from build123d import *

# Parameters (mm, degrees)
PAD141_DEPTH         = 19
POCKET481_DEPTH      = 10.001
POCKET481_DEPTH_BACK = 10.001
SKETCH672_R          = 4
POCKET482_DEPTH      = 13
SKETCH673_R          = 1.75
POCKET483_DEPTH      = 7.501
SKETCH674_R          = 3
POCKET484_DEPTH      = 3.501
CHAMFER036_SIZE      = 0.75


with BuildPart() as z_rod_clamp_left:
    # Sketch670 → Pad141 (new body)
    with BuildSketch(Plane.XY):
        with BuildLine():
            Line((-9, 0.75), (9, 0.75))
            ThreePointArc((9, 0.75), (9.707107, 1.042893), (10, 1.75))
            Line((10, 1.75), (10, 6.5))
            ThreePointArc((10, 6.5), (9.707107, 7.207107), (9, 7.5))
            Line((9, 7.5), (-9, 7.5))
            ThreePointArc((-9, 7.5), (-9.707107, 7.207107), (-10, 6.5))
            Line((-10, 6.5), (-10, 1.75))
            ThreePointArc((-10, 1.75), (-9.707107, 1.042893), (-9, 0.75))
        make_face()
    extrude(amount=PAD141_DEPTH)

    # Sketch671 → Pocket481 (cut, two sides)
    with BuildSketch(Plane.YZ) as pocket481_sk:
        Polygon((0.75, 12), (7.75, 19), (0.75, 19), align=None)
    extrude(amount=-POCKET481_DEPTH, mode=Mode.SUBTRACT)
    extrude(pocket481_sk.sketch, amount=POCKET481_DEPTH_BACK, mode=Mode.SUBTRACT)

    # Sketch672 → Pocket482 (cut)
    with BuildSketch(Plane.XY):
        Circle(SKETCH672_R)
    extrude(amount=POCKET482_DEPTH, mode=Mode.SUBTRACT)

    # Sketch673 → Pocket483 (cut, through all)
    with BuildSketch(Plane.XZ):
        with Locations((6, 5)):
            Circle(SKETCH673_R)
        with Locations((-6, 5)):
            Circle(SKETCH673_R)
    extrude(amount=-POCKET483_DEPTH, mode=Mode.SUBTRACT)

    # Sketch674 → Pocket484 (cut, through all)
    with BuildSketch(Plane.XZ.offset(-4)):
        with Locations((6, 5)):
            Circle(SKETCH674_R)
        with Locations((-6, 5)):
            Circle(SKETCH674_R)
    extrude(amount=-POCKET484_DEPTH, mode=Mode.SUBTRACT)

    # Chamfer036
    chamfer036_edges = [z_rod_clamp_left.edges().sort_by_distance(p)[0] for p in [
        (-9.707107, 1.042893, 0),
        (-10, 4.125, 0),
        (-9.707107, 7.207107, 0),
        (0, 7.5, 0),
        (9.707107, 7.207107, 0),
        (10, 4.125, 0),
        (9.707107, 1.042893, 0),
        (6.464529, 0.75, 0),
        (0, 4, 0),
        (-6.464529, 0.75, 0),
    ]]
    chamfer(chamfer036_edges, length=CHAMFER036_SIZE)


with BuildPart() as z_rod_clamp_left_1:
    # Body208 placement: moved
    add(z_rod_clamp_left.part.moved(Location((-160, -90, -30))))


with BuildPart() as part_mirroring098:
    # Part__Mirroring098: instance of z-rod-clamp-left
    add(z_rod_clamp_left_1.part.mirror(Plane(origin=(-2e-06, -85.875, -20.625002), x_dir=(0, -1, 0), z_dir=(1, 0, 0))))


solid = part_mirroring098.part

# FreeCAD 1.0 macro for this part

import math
import FreeCAD as App
import Part
import Sketcher


def edges_at(feature, points):
    """Names of the edges that pass closest to the given points."""
    edges = feature.Shape.Edges
    near = lambda p: min(range(len(edges)), key=lambda i: edges[i].distToShape(Part.Vertex(*p))[0])
    return sorted({f"Edge{near(p) + 1}" for p in points})


def add_polygon(sketch, points):
    """Adds a closed chain of lines whose ends are joined by coincident constraints."""
    first, n = sketch.GeometryCount, len(points)
    for a, b in zip(points, points[1:] + points[:1]):
        sketch.addGeometry(Part.LineSegment(App.Vector(*a, 0), App.Vector(*b, 0)), False)
    for i in range(n):
        sketch.addConstraint(Sketcher.Constraint("Coincident", first + i, 2, first + (i + 1) % n, 1))

doc = App.newDocument("Part")
params = doc.addObject("Spreadsheet::Sheet", "Params")
for row, (alias, value) in enumerate([
    ("sketch1_radius", "0.999999 mm"),
    ("sketch1_width", "18 mm"),
    ("sketch1_height", "4.75 mm"),
    ("pad1_length", "19 mm"),
    ("sketch2_width", "7 mm"),
    ("sketch3_diameter", "8 mm"),
    ("pocket2_length", "13 mm"),
    ("sketch4_diameter", "3.5 mm"),
    ("sketch5_diameter", "6 mm"),
    ("chamfer_size", "0.75 mm"),
], start=1):
    params.set(f"A{row}", alias)
    params.set(f"B{row}", "=" + value)
    params.setAlias(f"B{row}", alias)

body = doc.addObject("PartDesign::Body", "Body")

# Sketch on XY plane
sketch1 = body.newObject("Sketcher::SketchObject", "Sketch")
sketch1.AttachmentSupport = (doc.getObject("XY_Plane"), [""])
sketch1.MapMode = "FlatFace"
sketch1.addGeometry([
    Part.LineSegment(App.Vector(-9, 0.8, 0), App.Vector(9, 0.8, 0)),  # 0
    Part.ArcOfCircle(Part.Circle(App.Vector(9, 1.7, 0), App.Vector(0, 0, 1), 1), math.radians(-90), math.radians(0)),  # 1
    Part.LineSegment(App.Vector(10, 1.8, 0), App.Vector(10, 6.5, 0)),  # 2
    Part.ArcOfCircle(Part.Circle(App.Vector(9, 6.5, 0), App.Vector(0, 0, 1), 1), math.radians(0), math.radians(90)),  # 3
    Part.LineSegment(App.Vector(9, 7.5, 0), App.Vector(-9, 7.5, 0)),  # 4
    Part.ArcOfCircle(Part.Circle(App.Vector(-9, 6.5, 0), App.Vector(0, 0, 1), 1), math.radians(90), math.radians(180)),  # 5
    Part.LineSegment(App.Vector(-10, 6.5, 0), App.Vector(-10, 1.8, 0)),  # 6
    Part.ArcOfCircle(Part.Circle(App.Vector(-9, 1.7, 0), App.Vector(0, 0, 1), 1), math.radians(180), math.radians(270)),  # 7
], False)
sketch1.addConstraint([
    Sketcher.Constraint("Tangent", 0, 2, 1, 1),
    Sketcher.Constraint("Tangent", 1, 2, 2, 1),
    Sketcher.Constraint("Tangent", 2, 2, 3, 1),
    Sketcher.Constraint("Tangent", 3, 2, 4, 1),
    Sketcher.Constraint("Tangent", 4, 2, 5, 1),
    Sketcher.Constraint("Tangent", 5, 2, 6, 1),
    Sketcher.Constraint("Tangent", 6, 2, 7, 1),
    Sketcher.Constraint("Tangent", 7, 2, 0, 1),
    Sketcher.Constraint("Horizontal", 0),
    Sketcher.Constraint("Vertical", 2),
    Sketcher.Constraint("Horizontal", 4),
    Sketcher.Constraint("Vertical", 6),
    Sketcher.Constraint("Equal", 1, 3),
    Sketcher.Constraint("Equal", 3, 5),
    Sketcher.Constraint("Equal", 5, 7),
    Sketcher.Constraint("Radius", 1, 0.999999),
    Sketcher.Constraint("DistanceX", 0, 1, 0, 2, 18.0),
    Sketcher.Constraint("DistanceX", -1, 1, 1, 3, 9.000001),
    Sketcher.Constraint("DistanceY", 2, 1, 2, 2, 4.75),
    Sketcher.Constraint("DistanceY", -1, 1, 3, 3, 6.500001),
])
sketch1.setExpression("Constraints[15]", "Params.sketch1_radius")
sketch1.setExpression("Constraints[16]", "Params.sketch1_width")
sketch1.setExpression("Constraints[18]", "Params.sketch1_height")
pad1 = body.newObject("PartDesign::Pad", "Pad")
pad1.Profile = sketch1
pad1.setExpression("Length", "Params.pad1_length")

# Sketch on YZ plane
sketch2 = body.newObject("Sketcher::SketchObject", "Sketch001")
sketch2.AttachmentSupport = (doc.getObject("YZ_Plane"), [""])
sketch2.MapMode = "FlatFace"
add_polygon(sketch2, [(1, 12), (8, 19), (1, 19)])  # lines 0-2
sketch2.addConstraint([
    Sketcher.Constraint("Horizontal", 1),
    Sketcher.Constraint("Vertical", 2),
    Sketcher.Constraint("Equal", 1, 2),
    Sketcher.Constraint("DistanceX", 1, 2, 1, 1, 7.0),
    Sketcher.Constraint("DistanceY", -1, 1, 0, 2, 19.0),
    Sketcher.Constraint("DistanceX", -1, 1, 0, 2, 7.75),
])
sketch2.setExpression("Constraints[6]", "Params.sketch2_width")
pocket1 = body.newObject("PartDesign::Pocket", "Pocket")
pocket1.Profile = sketch2
pocket1.Type = "ThroughAll"
pocket1.Midplane = True

# Sketch on XY plane
sketch3 = body.newObject("Sketcher::SketchObject", "Sketch002")
sketch3.AttachmentSupport = (doc.getObject("XY_Plane"), [""])
sketch3.MapMode = "FlatFace"
sketch3.addGeometry(Part.Circle(App.Vector(0, 0, 0), App.Vector(0, 0, 1), 4), False)
sketch3.addConstraint([
    Sketcher.Constraint("Coincident", 0, 3, -1, 1),
    Sketcher.Constraint("Diameter", 0, 8.0),
])
sketch3.setExpression("Constraints[1]", "Params.sketch3_diameter")
pocket2 = body.newObject("PartDesign::Pocket", "Pocket001")
pocket2.Profile = sketch3
pocket2.setExpression("Length", "Params.pocket2_length")
pocket2.Reversed = True

# Sketch on XZ plane
sketch4 = body.newObject("Sketcher::SketchObject", "Sketch003")
sketch4.AttachmentSupport = (doc.getObject("XZ_Plane"), [""])
sketch4.MapMode = "FlatFace"
sketch4.addGeometry([
    Part.Circle(App.Vector(6, 5, 0), App.Vector(0, 0, 1), 1.8),
    Part.Circle(App.Vector(-6, 5, 0), App.Vector(0, 0, 1), 1.8),
], False)
sketch4.addConstraint([
    Sketcher.Constraint("Equal", 0, 1),
    Sketcher.Constraint("Symmetric", 0, 3, 1, 3, -2),
    Sketcher.Constraint("Diameter", 0, 3.5),
    Sketcher.Constraint("DistanceX", -1, 1, 0, 3, 6.0),
    Sketcher.Constraint("DistanceY", -1, 1, 0, 3, 5.0),
])
sketch4.setExpression("Constraints[2]", "Params.sketch4_diameter")
pocket3 = body.newObject("PartDesign::Pocket", "Pocket002")
pocket3.Profile = sketch4
pocket3.Type = "ThroughAll"

# Sketch on XZ plane
sketch5 = body.newObject("Sketcher::SketchObject", "Sketch004")
sketch5.AttachmentSupport = (doc.getObject("XZ_Plane"), [""])
sketch5.MapMode = "FlatFace"
sketch5.AttachmentOffset = App.Placement(App.Vector(0, 0, -4), App.Rotation())
sketch5.addGeometry([
    Part.Circle(App.Vector(6, 5, 0), App.Vector(0, 0, 1), 3),
    Part.Circle(App.Vector(-6, 5, 0), App.Vector(0, 0, 1), 3),
], False)
sketch5.addConstraint([
    Sketcher.Constraint("Equal", 0, 1),
    Sketcher.Constraint("Symmetric", 0, 3, 1, 3, -2),
    Sketcher.Constraint("Diameter", 0, 6.0),
    Sketcher.Constraint("DistanceX", -1, 1, 0, 3, 6.0),
    Sketcher.Constraint("DistanceY", -1, 1, 0, 3, 5.0),
])
sketch5.setExpression("Constraints[2]", "Params.sketch5_diameter")
pocket4 = body.newObject("PartDesign::Pocket", "Pocket003")
pocket4.Profile = sketch5
pocket4.Type = "ThroughAll"
doc.recompute()

chamfer = body.newObject("PartDesign::Chamfer", "Chamfer")
chamfer.Base = (pocket4, edges_at(pocket4, [
    (-9.707, 1.043, 0),
    (-10, 4.125, 0),
    (-9.707, 7.207, 0),
    (0, 7.5, 0),
    (9.707, 7.207, 0),
    (10, 4.125, 0),
    (9.707, 1.043, 0),
    (6.465, 0.75, 0),
    (0, 4, 0),
    (-6.465, 0.75, 0),
]))
chamfer.setExpression("Size", "Params.chamfer_size")
body2 = doc.addObject("PartDesign::Body", "Body001")
doc.recompute()

body.Placement = App.Placement(App.Vector(-160, -90, -30), App.Rotation(App.Vector(0, 0, 1), 0))
boolean = body2.newObject("PartDesign::Boolean", "Boolean")
boolean.Type = "Fuse"
boolean.addObjects([body])
body3 = doc.addObject("PartDesign::Body", "Body002")
doc.recompute()

mirroring = doc.addObject("Part::Mirroring", "Mirroring")
mirroring.Source = body2
mirroring.Base = App.Vector(-0.000002, -85.875, -20.625002)
mirroring.Normal = App.Vector(1, 0, 0)
body3.BaseFeature = mirroring
doc.recompute()
body2.Visibility = False
mirroring.Visibility = False

doc.recompute()
